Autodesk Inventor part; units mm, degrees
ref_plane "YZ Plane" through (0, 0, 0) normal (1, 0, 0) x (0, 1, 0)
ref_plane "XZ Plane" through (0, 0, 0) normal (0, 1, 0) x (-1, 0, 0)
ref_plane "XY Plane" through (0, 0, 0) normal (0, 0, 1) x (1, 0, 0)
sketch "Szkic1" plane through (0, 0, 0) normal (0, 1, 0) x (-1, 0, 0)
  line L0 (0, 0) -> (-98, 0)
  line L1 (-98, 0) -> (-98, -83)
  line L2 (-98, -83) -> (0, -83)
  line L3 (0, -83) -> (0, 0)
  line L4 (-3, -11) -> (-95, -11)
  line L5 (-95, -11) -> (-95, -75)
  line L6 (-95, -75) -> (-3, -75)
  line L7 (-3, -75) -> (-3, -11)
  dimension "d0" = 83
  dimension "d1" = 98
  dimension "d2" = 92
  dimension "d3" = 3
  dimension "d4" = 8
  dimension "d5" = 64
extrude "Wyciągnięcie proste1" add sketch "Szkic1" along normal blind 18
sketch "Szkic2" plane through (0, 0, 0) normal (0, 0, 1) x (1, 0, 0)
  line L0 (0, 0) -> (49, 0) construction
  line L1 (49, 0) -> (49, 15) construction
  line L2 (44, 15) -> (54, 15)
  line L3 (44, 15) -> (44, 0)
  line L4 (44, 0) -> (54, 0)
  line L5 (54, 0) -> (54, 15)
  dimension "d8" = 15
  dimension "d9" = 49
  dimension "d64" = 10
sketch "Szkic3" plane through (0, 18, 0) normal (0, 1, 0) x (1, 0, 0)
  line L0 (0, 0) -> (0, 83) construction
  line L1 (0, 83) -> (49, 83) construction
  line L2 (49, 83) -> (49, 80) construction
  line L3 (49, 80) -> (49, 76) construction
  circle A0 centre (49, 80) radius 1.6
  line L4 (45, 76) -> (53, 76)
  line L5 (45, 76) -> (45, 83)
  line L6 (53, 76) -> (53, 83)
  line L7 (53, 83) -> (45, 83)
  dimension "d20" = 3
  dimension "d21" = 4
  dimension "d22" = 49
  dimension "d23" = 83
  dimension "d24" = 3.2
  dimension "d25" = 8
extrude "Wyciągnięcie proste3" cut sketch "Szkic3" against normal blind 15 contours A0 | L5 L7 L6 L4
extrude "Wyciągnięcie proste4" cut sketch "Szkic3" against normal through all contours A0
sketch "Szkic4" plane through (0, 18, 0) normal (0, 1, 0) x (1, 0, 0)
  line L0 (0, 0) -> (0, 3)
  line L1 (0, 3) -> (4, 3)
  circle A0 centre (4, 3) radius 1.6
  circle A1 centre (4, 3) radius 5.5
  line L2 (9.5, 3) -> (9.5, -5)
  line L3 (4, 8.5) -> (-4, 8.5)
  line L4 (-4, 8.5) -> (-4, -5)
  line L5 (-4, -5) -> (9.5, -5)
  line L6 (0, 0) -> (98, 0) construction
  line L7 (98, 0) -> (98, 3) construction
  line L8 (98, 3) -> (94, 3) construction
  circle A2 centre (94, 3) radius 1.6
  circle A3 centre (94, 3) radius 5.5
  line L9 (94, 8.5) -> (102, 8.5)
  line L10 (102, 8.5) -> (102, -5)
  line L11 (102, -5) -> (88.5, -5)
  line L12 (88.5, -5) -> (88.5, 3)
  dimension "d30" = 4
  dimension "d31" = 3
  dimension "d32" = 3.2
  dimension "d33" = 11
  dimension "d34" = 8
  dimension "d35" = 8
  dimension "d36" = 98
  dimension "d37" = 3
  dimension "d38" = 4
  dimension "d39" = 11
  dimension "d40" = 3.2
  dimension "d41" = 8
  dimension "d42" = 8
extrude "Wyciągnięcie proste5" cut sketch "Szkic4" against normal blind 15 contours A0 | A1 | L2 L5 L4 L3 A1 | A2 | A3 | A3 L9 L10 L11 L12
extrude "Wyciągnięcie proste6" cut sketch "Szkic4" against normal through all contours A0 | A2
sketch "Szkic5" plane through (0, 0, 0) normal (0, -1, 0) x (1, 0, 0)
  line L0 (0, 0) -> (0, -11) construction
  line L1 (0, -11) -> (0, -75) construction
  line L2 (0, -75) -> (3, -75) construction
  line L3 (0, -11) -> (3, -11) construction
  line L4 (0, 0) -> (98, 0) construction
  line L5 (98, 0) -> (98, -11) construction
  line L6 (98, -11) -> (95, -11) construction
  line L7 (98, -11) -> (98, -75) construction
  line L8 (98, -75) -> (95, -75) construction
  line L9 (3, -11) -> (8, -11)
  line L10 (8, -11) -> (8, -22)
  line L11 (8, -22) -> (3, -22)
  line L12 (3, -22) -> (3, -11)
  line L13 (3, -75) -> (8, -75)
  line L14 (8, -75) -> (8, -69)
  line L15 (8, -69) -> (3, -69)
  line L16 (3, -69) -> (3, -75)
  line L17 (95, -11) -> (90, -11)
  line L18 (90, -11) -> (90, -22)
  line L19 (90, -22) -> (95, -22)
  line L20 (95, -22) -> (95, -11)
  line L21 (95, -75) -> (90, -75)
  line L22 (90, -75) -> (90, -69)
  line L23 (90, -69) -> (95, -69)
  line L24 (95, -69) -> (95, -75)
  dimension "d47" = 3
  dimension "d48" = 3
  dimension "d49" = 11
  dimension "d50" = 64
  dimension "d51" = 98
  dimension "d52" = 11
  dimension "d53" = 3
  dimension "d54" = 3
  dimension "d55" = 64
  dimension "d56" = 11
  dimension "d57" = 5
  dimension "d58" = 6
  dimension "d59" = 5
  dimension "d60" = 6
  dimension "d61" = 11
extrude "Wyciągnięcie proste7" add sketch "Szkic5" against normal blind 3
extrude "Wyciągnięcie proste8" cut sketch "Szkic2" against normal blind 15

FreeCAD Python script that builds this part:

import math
import FreeCAD as App
import Part
import Sketcher
Q = App.Units.Quantity

doc = App.newDocument("Part")
params = doc.addObject("Spreadsheet::Sheet", "Params")
for row, (alias, value) in enumerate([
    ("sketch1_width", "98 mm"),
    ("sketch1_width2", "92 mm"),
    ("sketch1_height", "83 mm"),
    ("sketch1_height2", "64 mm"),
    ("pad1_length", "18 mm"),
    ("sketch2_width", "8 mm"),
    ("sketch2_height", "7 mm"),
    ("pocket1_length", "15 mm"),
    ("sketch3_diameter", "3.2 mm"),
    ("sketch4_radius", "5.5 mm"),
    ("sketch4_width", "8 mm"),
    ("pocket3_length", "15 mm"),
    ("sketch5_diameter", "3.2 mm"),
    ("sketch6_width", "5 mm"),
    ("sketch6_height", "11 mm"),
    ("sketch6_height2", "6 mm"),
    ("pad2_length", "3 mm"),
    ("sketch7_width", "10 mm"),
    ("sketch7_height", "15 mm"),
    ("pocket5_length", "15 mm"),
], start=1):
    params.set(f"A{row}", alias)
    params.set(f"B{row}", "=" + value)
    params.setAlias(f"B{row}", alias)

body = doc.addObject("PartDesign::Body", "Body")

# Sketch on XZ plane
sketch1 = body.newObject("Sketcher::SketchObject", "Sketch")
sketch1.AttachmentSupport = (doc.getObject("XZ_Plane"), [""])
sketch1.MapMode = "FlatFace"
sketch1.addGeometry(Part.LineSegment(App.Vector(0, -83, 0), App.Vector(0, 0, 0)), False)
sketch1.addGeometry(Part.LineSegment(App.Vector(0, 0, 0), App.Vector(98, 0, 0)), False)
sketch1.addGeometry(Part.LineSegment(App.Vector(98, 0, 0), App.Vector(98, -83, 0)), False)
sketch1.addGeometry(Part.LineSegment(App.Vector(98, -83, 0), App.Vector(0, -83, 0)), False)
sketch1.addGeometry(Part.LineSegment(App.Vector(95, -11, 0), App.Vector(3, -11, 0)), False)
sketch1.addGeometry(Part.LineSegment(App.Vector(3, -11, 0), App.Vector(3, -75, 0)), False)
sketch1.addGeometry(Part.LineSegment(App.Vector(3, -75, 0), App.Vector(95, -75, 0)), False)
sketch1.addGeometry(Part.LineSegment(App.Vector(95, -75, 0), App.Vector(95, -11, 0)), False)
sketch1.addConstraint(Sketcher.Constraint("Coincident", 0, 2, 1, 1))
sketch1.addConstraint(Sketcher.Constraint("Coincident", 1, 2, 2, 1))
sketch1.addConstraint(Sketcher.Constraint("Coincident", 2, 2, 3, 1))
sketch1.addConstraint(Sketcher.Constraint("Coincident", 3, 2, 0, 1))
sketch1.addConstraint(Sketcher.Constraint("Coincident", 4, 2, 5, 1))
sketch1.addConstraint(Sketcher.Constraint("Coincident", 5, 2, 6, 1))
sketch1.addConstraint(Sketcher.Constraint("Coincident", 6, 2, 7, 1))
sketch1.addConstraint(Sketcher.Constraint("Coincident", 7, 2, 4, 1))
sketch1.addConstraint(Sketcher.Constraint("Vertical", 0))
sketch1.addConstraint(Sketcher.Constraint("Horizontal", 1))
sketch1.addConstraint(Sketcher.Constraint("Vertical", 2))
sketch1.addConstraint(Sketcher.Constraint("Horizontal", 3))
sketch1.addConstraint(Sketcher.Constraint("Horizontal", 4))
sketch1.addConstraint(Sketcher.Constraint("Vertical", 5))
sketch1.addConstraint(Sketcher.Constraint("Horizontal", 6))
sketch1.addConstraint(Sketcher.Constraint("Vertical", 7))
sketch1.addConstraint(Sketcher.Constraint("Coincident", 0, 2, -1, 1))
sketch1.addConstraint(Sketcher.Constraint("DistanceX", 1, 1, 1, 2, Q("98 mm")))
sketch1.addConstraint(Sketcher.Constraint("DistanceX", 4, 2, 4, 1, Q("92 mm")))
sketch1.addConstraint(Sketcher.Constraint("DistanceY", 0, 1, 0, 2, Q("83 mm")))
sketch1.addConstraint(Sketcher.Constraint("DistanceY", 5, 2, 5, 1, Q("64 mm")))
sketch1.addConstraint(Sketcher.Constraint("DistanceX", -1, 1, 4, 2, Q("3 mm")))
sketch1.addConstraint(Sketcher.Constraint("DistanceY", 3, 2, 5, 2, Q("8 mm")))
sketch1.setExpression("Constraints[17]", "Params.sketch1_width")
sketch1.setExpression("Constraints[18]", "Params.sketch1_width2")
sketch1.setExpression("Constraints[19]", "Params.sketch1_height")
sketch1.setExpression("Constraints[20]", "Params.sketch1_height2")
pad1 = body.newObject("PartDesign::Pad", "Pad")
pad1.Profile = sketch1
pad1.setExpression("Length", "Params.pad1_length")
pad1.Reversed = True

# Sketch on XZ plane
sketch2 = body.newObject("Sketcher::SketchObject", "Sketch001")
sketch2.AttachmentSupport = (doc.getObject("XZ_Plane"), [""])
sketch2.MapMode = "FlatFace"
sketch2.AttachmentOffset = App.Placement(App.Vector(0, 0, -18), App.Rotation())
sketch2.addGeometry(Part.LineSegment(App.Vector(45, -83, 0), App.Vector(45, -76, 0)), False)
sketch2.addGeometry(Part.LineSegment(App.Vector(45, -76, 0), App.Vector(53, -76, 0)), False)
sketch2.addGeometry(Part.LineSegment(App.Vector(53, -76, 0), App.Vector(53, -83, 0)), False)
sketch2.addGeometry(Part.LineSegment(App.Vector(53, -83, 0), App.Vector(45, -83, 0)), False)
sketch2.addConstraint(Sketcher.Constraint("Coincident", 0, 2, 1, 1))
sketch2.addConstraint(Sketcher.Constraint("Coincident", 1, 2, 2, 1))
sketch2.addConstraint(Sketcher.Constraint("Coincident", 2, 2, 3, 1))
sketch2.addConstraint(Sketcher.Constraint("Coincident", 3, 2, 0, 1))
sketch2.addConstraint(Sketcher.Constraint("Vertical", 0))
sketch2.addConstraint(Sketcher.Constraint("Horizontal", 1))
sketch2.addConstraint(Sketcher.Constraint("Vertical", 2))
sketch2.addConstraint(Sketcher.Constraint("Horizontal", 3))
sketch2.addConstraint(Sketcher.Constraint("DistanceX", 1, 1, 1, 2, Q("8 mm")))
sketch2.addConstraint(Sketcher.Constraint("DistanceY", 2, 2, -1, 1, Q("83 mm")))
sketch2.addConstraint(Sketcher.Constraint("DistanceY", 0, 1, 0, 2, Q("7 mm")))
sketch2.addConstraint(Sketcher.Constraint("DistanceX", -1, 1, 0, 2, Q("45 mm")))
sketch2.setExpression("Constraints[8]", "Params.sketch2_width")
sketch2.setExpression("Constraints[10]", "Params.sketch2_height")
pocket1 = body.newObject("PartDesign::Pocket", "Pocket")
pocket1.Profile = sketch2
pocket1.setExpression("Length", "Params.pocket1_length")
pocket1.Reversed = True

# Sketch on XZ plane
sketch3 = body.newObject("Sketcher::SketchObject", "Sketch002")
sketch3.AttachmentSupport = (doc.getObject("XZ_Plane"), [""])
sketch3.MapMode = "FlatFace"
sketch3.AttachmentOffset = App.Placement(App.Vector(0, 0, -18), App.Rotation())
sketch3.addGeometry(Part.Circle(App.Vector(49, -80, 0), App.Vector(0, 0, 1), 1.6), False)
sketch3.addConstraint(Sketcher.Constraint("Diameter", 0, Q("3.2 mm")))
sketch3.addConstraint(Sketcher.Constraint("DistanceX", -1, 1, 0, 3, Q("49 mm")))
sketch3.addConstraint(Sketcher.Constraint("DistanceY", 0, 3, -1, 1, Q("80 mm")))
sketch3.setExpression("Constraints[0]", "Params.sketch3_diameter")
pocket2 = body.newObject("PartDesign::Pocket", "Pocket001")
pocket2.Profile = sketch3
pocket2.Type = "ThroughAll"
pocket2.Reversed = True

# Sketch on XZ plane
sketch4 = body.newObject("Sketcher::SketchObject", "Sketch003")
sketch4.AttachmentSupport = (doc.getObject("XZ_Plane"), [""])
sketch4.MapMode = "FlatFace"
sketch4.AttachmentOffset = App.Placement(App.Vector(0, 0, -18), App.Rotation())
sketch4.addGeometry(Part.ArcOfCircle(Part.Circle(App.Vector(4, -3, 0), App.Vector(0, 0, 1), 6), math.radians(-90), math.radians(0)), False)
sketch4.addGeometry(Part.LineSegment(App.Vector(4, -8, 0), App.Vector(-4, -8, 0)), False)
sketch4.addGeometry(Part.LineSegment(App.Vector(-4, -8, 0), App.Vector(-4, 5, 0)), False)
sketch4.addGeometry(Part.LineSegment(App.Vector(-4, 5, 0), App.Vector(10, 5, 0)), False)
sketch4.addGeometry(Part.LineSegment(App.Vector(10, 5, 0), App.Vector(10, -3, 0)), False)
sketch4.addGeometry(Part.ArcOfCircle(Part.Circle(App.Vector(94, -3, 0), App.Vector(0, 0, 1), 6), math.radians(180), math.radians(270)), False)
sketch4.addGeometry(Part.LineSegment(App.Vector(88, -3, 0), App.Vector(88, 5, 0)), False)
sketch4.addGeometry(Part.LineSegment(App.Vector(88, 5, 0), App.Vector(102, 5, 0)), False)
sketch4.addGeometry(Part.LineSegment(App.Vector(102, 5, 0), App.Vector(102, -8, 0)), False)
sketch4.addGeometry(Part.LineSegment(App.Vector(102, -8, 0), App.Vector(94, -8, 0)), False)
sketch4.addConstraint(Sketcher.Constraint("Tangent", 0, 1, 1, 1))
sketch4.addConstraint(Sketcher.Constraint("Coincident", 1, 2, 2, 1))
sketch4.addConstraint(Sketcher.Constraint("Coincident", 2, 2, 3, 1))
sketch4.addConstraint(Sketcher.Constraint("Coincident", 3, 2, 4, 1))
sketch4.addConstraint(Sketcher.Constraint("Tangent", 4, 2, 0, 2))
sketch4.addConstraint(Sketcher.Constraint("Tangent", 5, 1, 6, 1))
sketch4.addConstraint(Sketcher.Constraint("Coincident", 6, 2, 7, 1))
sketch4.addConstraint(Sketcher.Constraint("Coincident", 7, 2, 8, 1))
sketch4.addConstraint(Sketcher.Constraint("Coincident", 8, 2, 9, 1))
sketch4.addConstraint(Sketcher.Constraint("Tangent", 9, 2, 5, 2))
sketch4.addConstraint(Sketcher.Constraint("Horizontal", 1))
sketch4.addConstraint(Sketcher.Constraint("Vertical", 2))
sketch4.addConstraint(Sketcher.Constraint("Horizontal", 3))
sketch4.addConstraint(Sketcher.Constraint("Vertical", 4))
sketch4.addConstraint(Sketcher.Constraint("Vertical", 6))
sketch4.addConstraint(Sketcher.Constraint("Horizontal", 7))
sketch4.addConstraint(Sketcher.Constraint("Vertical", 8))
sketch4.addConstraint(Sketcher.Constraint("Horizontal", 9))
sketch4.addConstraint(Sketcher.Constraint("Equal", 0, 5))
sketch4.addConstraint(Sketcher.Constraint("Horizontal", 0, 3, 5, 3))
sketch4.addConstraint(Sketcher.Constraint("Horizontal", 3, 2, 6, 2))
sketch4.addConstraint(Sketcher.Constraint("Equal", 3, 7))
sketch4.addConstraint(Sketcher.Constraint("Equal", 7, 2))
sketch4.addConstraint(Sketcher.Constraint("Radius", 0, Q("5.5 mm")))
sketch4.addConstraint(Sketcher.Constraint("DistanceX", 1, 2, 1, 1, Q("8 mm")))
sketch4.addConstraint(Sketcher.Constraint("DistanceX", -1, 1, 0, 3, Q("4 mm")))
sketch4.addConstraint(Sketcher.Constraint("DistanceY", 0, 3, -1, 1, Q("3 mm")))
sketch4.addConstraint(Sketcher.Constraint("DistanceX", 1, 2, 5, 3, Q("98 mm")))
sketch4.setExpression("Constraints[23]", "Params.sketch4_radius")
sketch4.setExpression("Constraints[24]", "Params.sketch4_width")
pocket3 = body.newObject("PartDesign::Pocket", "Pocket002")
pocket3.Profile = sketch4
pocket3.setExpression("Length", "Params.pocket3_length")
pocket3.Reversed = True

# Sketch on XZ plane
sketch5 = body.newObject("Sketcher::SketchObject", "Sketch004")
sketch5.AttachmentSupport = (doc.getObject("XZ_Plane"), [""])
sketch5.MapMode = "FlatFace"
sketch5.AttachmentOffset = App.Placement(App.Vector(0, 0, -18), App.Rotation())
sketch5.addGeometry(Part.Circle(App.Vector(4, -3, 0), App.Vector(0, 0, 1), 1.6), False)
sketch5.addGeometry(Part.Circle(App.Vector(94, -3, 0), App.Vector(0, 0, 1), 1.6), False)
sketch5.addConstraint(Sketcher.Constraint("Equal", 0, 1))
sketch5.addConstraint(Sketcher.Constraint("Horizontal", 0, 3, 1, 3))
sketch5.addConstraint(Sketcher.Constraint("Diameter", 0, Q("3.2 mm")))
sketch5.addConstraint(Sketcher.Constraint("DistanceX", -1, 1, 0, 3, Q("4 mm")))
sketch5.addConstraint(Sketcher.Constraint("DistanceY", 0, 3, -1, 1, Q("3 mm")))
sketch5.addConstraint(Sketcher.Constraint("DistanceX", -1, 1, 1, 3, Q("94 mm")))
sketch5.setExpression("Constraints[2]", "Params.sketch5_diameter")
pocket4 = body.newObject("PartDesign::Pocket", "Pocket003")
pocket4.Profile = sketch5
pocket4.Type = "ThroughAll"
pocket4.Reversed = True

# Sketch on XZ plane
sketch6 = body.newObject("Sketcher::SketchObject", "Sketch005")
sketch6.AttachmentSupport = (doc.getObject("XZ_Plane"), [""])
sketch6.MapMode = "FlatFace"
sketch6.addGeometry(Part.LineSegment(App.Vector(8, -11, 0), App.Vector(3, -11, 0)), False)
sketch6.addGeometry(Part.LineSegment(App.Vector(3, -11, 0), App.Vector(3, -22, 0)), False)
sketch6.addGeometry(Part.LineSegment(App.Vector(3, -22, 0), App.Vector(8, -22, 0)), False)
sketch6.addGeometry(Part.LineSegment(App.Vector(8, -22, 0), App.Vector(8, -11, 0)), False)
sketch6.addGeometry(Part.LineSegment(App.Vector(3, -69, 0), App.Vector(3, -75, 0)), False)
sketch6.addGeometry(Part.LineSegment(App.Vector(3, -75, 0), App.Vector(8, -75, 0)), False)
sketch6.addGeometry(Part.LineSegment(App.Vector(8, -75, 0), App.Vector(8, -69, 0)), False)
sketch6.addGeometry(Part.LineSegment(App.Vector(8, -69, 0), App.Vector(3, -69, 0)), False)
sketch6.addGeometry(Part.LineSegment(App.Vector(95, -22, 0), App.Vector(95, -11, 0)), False)
sketch6.addGeometry(Part.LineSegment(App.Vector(95, -11, 0), App.Vector(90, -11, 0)), False)
sketch6.addGeometry(Part.LineSegment(App.Vector(90, -11, 0), App.Vector(90, -22, 0)), False)
sketch6.addGeometry(Part.LineSegment(App.Vector(90, -22, 0), App.Vector(95, -22, 0)), False)
sketch6.addGeometry(Part.LineSegment(App.Vector(90, -75, 0), App.Vector(95, -75, 0)), False)
sketch6.addGeometry(Part.LineSegment(App.Vector(95, -75, 0), App.Vector(95, -69, 0)), False)
sketch6.addGeometry(Part.LineSegment(App.Vector(95, -69, 0), App.Vector(90, -69, 0)), False)
sketch6.addGeometry(Part.LineSegment(App.Vector(90, -69, 0), App.Vector(90, -75, 0)), False)
sketch6.addConstraint(Sketcher.Constraint("Coincident", 0, 2, 1, 1))
sketch6.addConstraint(Sketcher.Constraint("Coincident", 1, 2, 2, 1))
sketch6.addConstraint(Sketcher.Constraint("Coincident", 2, 2, 3, 1))
sketch6.addConstraint(Sketcher.Constraint("Coincident", 3, 2, 0, 1))
sketch6.addConstraint(Sketcher.Constraint("Coincident", 4, 2, 5, 1))
sketch6.addConstraint(Sketcher.Constraint("Coincident", 5, 2, 6, 1))
sketch6.addConstraint(Sketcher.Constraint("Coincident", 6, 2, 7, 1))
sketch6.addConstraint(Sketcher.Constraint("Coincident", 7, 2, 4, 1))
sketch6.addConstraint(Sketcher.Constraint("Coincident", 8, 2, 9, 1))
sketch6.addConstraint(Sketcher.Constraint("Coincident", 9, 2, 10, 1))
sketch6.addConstraint(Sketcher.Constraint("Coincident", 10, 2, 11, 1))
sketch6.addConstraint(Sketcher.Constraint("Coincident", 11, 2, 8, 1))
sketch6.addConstraint(Sketcher.Constraint("Coincident", 12, 2, 13, 1))
sketch6.addConstraint(Sketcher.Constraint("Coincident", 13, 2, 14, 1))
sketch6.addConstraint(Sketcher.Constraint("Coincident", 14, 2, 15, 1))
sketch6.addConstraint(Sketcher.Constraint("Coincident", 15, 2, 12, 1))
sketch6.addConstraint(Sketcher.Constraint("Horizontal", 0))
sketch6.addConstraint(Sketcher.Constraint("Vertical", 1))
sketch6.addConstraint(Sketcher.Constraint("Horizontal", 2))
sketch6.addConstraint(Sketcher.Constraint("Vertical", 3))
sketch6.addConstraint(Sketcher.Constraint("Vertical", 4))
sketch6.addConstraint(Sketcher.Constraint("Horizontal", 5))
sketch6.addConstraint(Sketcher.Constraint("Vertical", 6))
sketch6.addConstraint(Sketcher.Constraint("Horizontal", 7))
sketch6.addConstraint(Sketcher.Constraint("Vertical", 8))
sketch6.addConstraint(Sketcher.Constraint("Horizontal", 9))
sketch6.addConstraint(Sketcher.Constraint("Vertical", 10))
sketch6.addConstraint(Sketcher.Constraint("Horizontal", 11))
sketch6.addConstraint(Sketcher.Constraint("Horizontal", 12))
sketch6.addConstraint(Sketcher.Constraint("Vertical", 13))
sketch6.addConstraint(Sketcher.Constraint("Horizontal", 14))
sketch6.addConstraint(Sketcher.Constraint("Vertical", 15))
sketch6.addConstraint(Sketcher.Constraint("Horizontal", 3, 2, 8, 2))
sketch6.addConstraint(Sketcher.Constraint("Horizontal", 2, 2, 10, 2))
sketch6.addConstraint(Sketcher.Constraint("Horizontal", 5, 2, 12, 2))
sketch6.addConstraint(Sketcher.Constraint("Horizontal", 7, 2, 13, 2))
sketch6.addConstraint(Sketcher.Constraint("Vertical", 1, 2, 4, 2))
sketch6.addConstraint(Sketcher.Constraint("Vertical", 3, 2, 5, 2))
sketch6.addConstraint(Sketcher.Constraint("Vertical", 11, 2, 12, 2))
sketch6.addConstraint(Sketcher.Constraint("Vertical", 10, 2, 14, 2))
sketch6.addConstraint(Sketcher.Constraint("Equal", 7, 9))
sketch6.addConstraint(Sketcher.Constraint("DistanceX", 0, 2, 0, 1, Q("5 mm")))
sketch6.addConstraint(Sketcher.Constraint("DistanceY", 1, 2, 1, 1, Q("11 mm")))
sketch6.addConstraint(Sketcher.Constraint("DistanceY", 4, 2, 4, 1, Q("6 mm")))
sketch6.addConstraint(Sketcher.Constraint("DistanceX", -1, 1, 0, 2, Q("3 mm")))
sketch6.addConstraint(Sketcher.Constraint("DistanceY", 0, 2, -1, 1, Q("11 mm")))
sketch6.addConstraint(Sketcher.Constraint("DistanceY", 4, 2, 0, 2, Q("64 mm")))
sketch6.addConstraint(Sketcher.Constraint("DistanceX", -1, 1, 8, 2, Q("95 mm")))
sketch6.setExpression("Constraints[41]", "Params.sketch6_width")
sketch6.setExpression("Constraints[42]", "Params.sketch6_height")
sketch6.setExpression("Constraints[43]", "Params.sketch6_height2")
pad2 = body.newObject("PartDesign::Pad", "Pad001")
pad2.Profile = sketch6
pad2.setExpression("Length", "Params.pad2_length")
pad2.Reversed = True

# Sketch on XY plane
sketch7 = body.newObject("Sketcher::SketchObject", "Sketch006")
sketch7.AttachmentSupport = (doc.getObject("XY_Plane"), [""])
sketch7.MapMode = "FlatFace"
sketch7.addGeometry(Part.LineSegment(App.Vector(54, 15, 0), App.Vector(44, 15, 0)), False)
sketch7.addGeometry(Part.LineSegment(App.Vector(44, 15, 0), App.Vector(44, 0, 0)), False)
sketch7.addGeometry(Part.LineSegment(App.Vector(44, 0, 0), App.Vector(54, 0, 0)), False)
sketch7.addGeometry(Part.LineSegment(App.Vector(54, 0, 0), App.Vector(54, 15, 0)), False)
sketch7.addConstraint(Sketcher.Constraint("Coincident", 0, 2, 1, 1))
sketch7.addConstraint(Sketcher.Constraint("Coincident", 1, 2, 2, 1))
sketch7.addConstraint(Sketcher.Constraint("Coincident", 2, 2, 3, 1))
sketch7.addConstraint(Sketcher.Constraint("Coincident", 3, 2, 0, 1))
sketch7.addConstraint(Sketcher.Constraint("Horizontal", 0))
sketch7.addConstraint(Sketcher.Constraint("Vertical", 1))
sketch7.addConstraint(Sketcher.Constraint("Horizontal", 2))
sketch7.addConstraint(Sketcher.Constraint("Vertical", 3))
sketch7.addConstraint(Sketcher.Constraint("PointOnObject", 1, 2, -1))
sketch7.addConstraint(Sketcher.Constraint("DistanceX", 0, 2, 0, 1, Q("10 mm")))
sketch7.addConstraint(Sketcher.Constraint("DistanceY", 1, 2, 1, 1, Q("15 mm")))
sketch7.addConstraint(Sketcher.Constraint("DistanceX", -1, 1, 0, 2, Q("44 mm")))
sketch7.setExpression("Constraints[9]", "Params.sketch7_width")
sketch7.setExpression("Constraints[10]", "Params.sketch7_height")
pocket5 = body.newObject("PartDesign::Pocket", "Pocket004")
pocket5.Profile = sketch7
pocket5.setExpression("Length", "Params.pocket5_length")

doc.recompute()
